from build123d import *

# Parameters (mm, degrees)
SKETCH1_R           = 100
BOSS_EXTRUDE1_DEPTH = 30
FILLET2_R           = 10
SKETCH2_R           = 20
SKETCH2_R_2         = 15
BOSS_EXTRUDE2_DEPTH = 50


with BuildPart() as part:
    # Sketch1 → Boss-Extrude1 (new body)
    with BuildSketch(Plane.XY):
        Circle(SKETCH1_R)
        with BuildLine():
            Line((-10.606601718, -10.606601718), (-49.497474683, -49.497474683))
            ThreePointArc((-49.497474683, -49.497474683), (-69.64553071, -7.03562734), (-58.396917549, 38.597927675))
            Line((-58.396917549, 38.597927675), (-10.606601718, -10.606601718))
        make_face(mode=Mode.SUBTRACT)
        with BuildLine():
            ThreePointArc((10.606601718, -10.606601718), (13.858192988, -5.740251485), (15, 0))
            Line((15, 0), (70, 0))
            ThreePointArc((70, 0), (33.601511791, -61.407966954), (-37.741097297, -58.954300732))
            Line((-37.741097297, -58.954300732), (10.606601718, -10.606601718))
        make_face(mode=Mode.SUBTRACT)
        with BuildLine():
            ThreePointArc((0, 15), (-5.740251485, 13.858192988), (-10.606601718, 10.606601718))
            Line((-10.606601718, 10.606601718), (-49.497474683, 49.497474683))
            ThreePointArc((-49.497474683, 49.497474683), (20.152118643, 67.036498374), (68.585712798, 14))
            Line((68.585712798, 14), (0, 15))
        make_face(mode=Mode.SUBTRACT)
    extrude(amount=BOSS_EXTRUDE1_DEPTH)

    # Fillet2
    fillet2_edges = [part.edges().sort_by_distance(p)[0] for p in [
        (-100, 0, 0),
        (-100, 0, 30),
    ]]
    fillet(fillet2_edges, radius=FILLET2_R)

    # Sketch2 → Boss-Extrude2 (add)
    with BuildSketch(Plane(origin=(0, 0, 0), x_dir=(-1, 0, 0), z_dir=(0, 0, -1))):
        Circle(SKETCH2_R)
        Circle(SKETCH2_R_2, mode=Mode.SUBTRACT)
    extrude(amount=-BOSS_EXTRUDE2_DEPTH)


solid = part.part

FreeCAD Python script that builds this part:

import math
import FreeCAD as App
import Part
import Sketcher
Q = App.Units.Quantity


def edges_at(feature, points):
    """Names of the edges that pass closest to the given points."""
    edges = feature.Shape.Edges
    near = lambda p: min(range(len(edges)), key=lambda i: edges[i].distToShape(Part.Vertex(*p))[0])
    return sorted({f"Edge{near(p) + 1}" for p in points})

doc = App.newDocument("Part")
body = doc.addObject("PartDesign::Body", "Body")

# Sketch on XY plane
sketch1 = doc.addObject("Sketcher::SketchObject", "Sketch")
body.addObject(sketch1)
sketch1.AttachmentSupport = (doc.XY_Plane, [""])
sketch1.MapMode = "FlatFace"
sketch1.addGeometry(Part.Circle(App.Vector(0, 0, 0), App.Vector(0, 0, 1), 100), False)
sketch1.addGeometry(Part.LineSegment(App.Vector(-58, 39, 0), App.Vector(-11, -11, 0)), False)
sketch1.addGeometry(Part.LineSegment(App.Vector(-11, -11, 0), App.Vector(-49, -49, 0)), False)
sketch1.addGeometry(Part.ArcOfCircle(Part.Circle(App.Vector(0, 0, 0), App.Vector(0, 0, 1), 70), math.radians(147), math.radians(225)), False)
sketch1.addGeometry(Part.LineSegment(App.Vector(-38, -59, 0), App.Vector(11, -11, 0)), False)
sketch1.addGeometry(Part.ArcOfCircle(Part.Circle(App.Vector(0, 0, 0), App.Vector(0, 0, 1), 15), math.radians(-45), math.radians(0)), False)
sketch1.addGeometry(Part.LineSegment(App.Vector(15, 0, 0), App.Vector(70, 0, 0)), False)
sketch1.addGeometry(Part.ArcOfCircle(Part.Circle(App.Vector(0, 0, 0), App.Vector(0, 0, 1), 70), math.radians(-123), math.radians(0)), False)
sketch1.addGeometry(Part.LineSegment(App.Vector(69, 14, 0), App.Vector(0, 15, 0)), False)
sketch1.addGeometry(Part.ArcOfCircle(Part.Circle(App.Vector(0, 0, 0), App.Vector(0, 0, 1), 15), math.radians(90), math.radians(135)), False)
sketch1.addGeometry(Part.LineSegment(App.Vector(-11, 11, 0), App.Vector(-49, 49, 0)), False)
sketch1.addGeometry(Part.ArcOfCircle(Part.Circle(App.Vector(0, 0, 0), App.Vector(0, 0, 1), 70), math.radians(12), math.radians(135)), False)
sketch1.addConstraint(Sketcher.Constraint("Coincident", 1, 2, 2, 1))
sketch1.addConstraint(Sketcher.Constraint("Coincident", 2, 2, 3, 2))
sketch1.addConstraint(Sketcher.Constraint("Coincident", 3, 1, 1, 1))
sketch1.addConstraint(Sketcher.Constraint("Tangent", 4, 2, 5, 1))
sketch1.addConstraint(Sketcher.Constraint("Coincident", 5, 2, 6, 1))
sketch1.addConstraint(Sketcher.Constraint("Coincident", 6, 2, 7, 2))
sketch1.addConstraint(Sketcher.Constraint("Coincident", 7, 1, 4, 1))
sketch1.addConstraint(Sketcher.Constraint("Coincident", 8, 2, 9, 1))
sketch1.addConstraint(Sketcher.Constraint("Coincident", 9, 2, 10, 1))
sketch1.addConstraint(Sketcher.Constraint("Coincident", 10, 2, 11, 2))
sketch1.addConstraint(Sketcher.Constraint("Coincident", 11, 1, 8, 1))
sketch1.addConstraint(Sketcher.Constraint("Horizontal", 6))
sketch1.addConstraint(Sketcher.Constraint("Coincident", 0, 3, -1, 1))
sketch1.addConstraint(Sketcher.Constraint("Coincident", 3, 3, -1, 1))
sketch1.addConstraint(Sketcher.Constraint("Coincident", 5, 3, -1, 1))
sketch1.addConstraint(Sketcher.Constraint("Coincident", 7, 3, -1, 1))
sketch1.addConstraint(Sketcher.Constraint("Coincident", 9, 3, -1, 1))
sketch1.addConstraint(Sketcher.Constraint("Coincident", 11, 3, -1, 1))
sketch1.addConstraint(Sketcher.Constraint("Equal", 3, 7))
sketch1.addConstraint(Sketcher.Constraint("Equal", 5, 9))
sketch1.addConstraint(Sketcher.Constraint("Equal", 7, 11))
sketch1.addConstraint(Sketcher.Constraint("Symmetric", 1, 2, 4, 2, -2))
sketch1.addConstraint(Sketcher.Constraint("PointOnObject", 5, 2, -1))
sketch1.addConstraint(Sketcher.Constraint("PointOnObject", 8, 2, -2))
sketch1.addConstraint(Sketcher.Constraint("Parallel", 2, 4))
sketch1.addConstraint(Sketcher.Constraint("Perpendicular", 4, 10))
sketch1.addConstraint(Sketcher.Constraint("Vertical", 1, 2, 9, 2))
sketch1.addConstraint(Sketcher.Constraint("Vertical", 2, 2, 10, 2))
sketch1.addConstraint(Sketcher.Constraint("Equal", 1, 8))
sketch1.addConstraint(Sketcher.Constraint("Diameter", 0, Q("200 mm")))
sketch1.addConstraint(Sketcher.Constraint("Radius", 3, Q("70 mm")))
sketch1.addConstraint(Sketcher.Constraint("Radius", 5, Q("15 mm")))
sketch1.addConstraint(Sketcher.Constraint("DistanceY", -1, 1, 11, 1, Q("14 mm")))
pad1 = doc.addObject("PartDesign::Pad", "Pad")
body.addObject(pad1)
pad1.Profile = sketch1
pad1.Length = 30
doc.recompute()

fillet = doc.addObject("PartDesign::Fillet", "Fillet")
body.addObject(fillet)
fillet.Base = (pad1, edges_at(pad1, [(-100, 0, 0), (-100, 0, 30)]))
fillet.Radius = 10

# Sketch on XY plane
sketch2 = doc.addObject("Sketcher::SketchObject", "Sketch001")
body.addObject(sketch2)
sketch2.AttachmentSupport = (doc.XY_Plane, [""])
sketch2.MapMode = "FlatFace"
sketch2.addGeometry(Part.Circle(App.Vector(0, 0, 0), App.Vector(0, 0, 1), 20), False)
sketch2.addGeometry(Part.Circle(App.Vector(0, 0, 0), App.Vector(0, 0, 1), 15), False)
sketch2.addConstraint(Sketcher.Constraint("Coincident", 0, 3, -1, 1))
sketch2.addConstraint(Sketcher.Constraint("Coincident", 1, 3, -1, 1))
sketch2.addConstraint(Sketcher.Constraint("Diameter", 0, Q("40 mm")))
sketch2.addConstraint(Sketcher.Constraint("Diameter", 1, Q("30 mm")))
pad2 = doc.addObject("PartDesign::Pad", "Pad001")
body.addObject(pad2)
pad2.Profile = sketch2
pad2.Length = 50

doc.recompute()
